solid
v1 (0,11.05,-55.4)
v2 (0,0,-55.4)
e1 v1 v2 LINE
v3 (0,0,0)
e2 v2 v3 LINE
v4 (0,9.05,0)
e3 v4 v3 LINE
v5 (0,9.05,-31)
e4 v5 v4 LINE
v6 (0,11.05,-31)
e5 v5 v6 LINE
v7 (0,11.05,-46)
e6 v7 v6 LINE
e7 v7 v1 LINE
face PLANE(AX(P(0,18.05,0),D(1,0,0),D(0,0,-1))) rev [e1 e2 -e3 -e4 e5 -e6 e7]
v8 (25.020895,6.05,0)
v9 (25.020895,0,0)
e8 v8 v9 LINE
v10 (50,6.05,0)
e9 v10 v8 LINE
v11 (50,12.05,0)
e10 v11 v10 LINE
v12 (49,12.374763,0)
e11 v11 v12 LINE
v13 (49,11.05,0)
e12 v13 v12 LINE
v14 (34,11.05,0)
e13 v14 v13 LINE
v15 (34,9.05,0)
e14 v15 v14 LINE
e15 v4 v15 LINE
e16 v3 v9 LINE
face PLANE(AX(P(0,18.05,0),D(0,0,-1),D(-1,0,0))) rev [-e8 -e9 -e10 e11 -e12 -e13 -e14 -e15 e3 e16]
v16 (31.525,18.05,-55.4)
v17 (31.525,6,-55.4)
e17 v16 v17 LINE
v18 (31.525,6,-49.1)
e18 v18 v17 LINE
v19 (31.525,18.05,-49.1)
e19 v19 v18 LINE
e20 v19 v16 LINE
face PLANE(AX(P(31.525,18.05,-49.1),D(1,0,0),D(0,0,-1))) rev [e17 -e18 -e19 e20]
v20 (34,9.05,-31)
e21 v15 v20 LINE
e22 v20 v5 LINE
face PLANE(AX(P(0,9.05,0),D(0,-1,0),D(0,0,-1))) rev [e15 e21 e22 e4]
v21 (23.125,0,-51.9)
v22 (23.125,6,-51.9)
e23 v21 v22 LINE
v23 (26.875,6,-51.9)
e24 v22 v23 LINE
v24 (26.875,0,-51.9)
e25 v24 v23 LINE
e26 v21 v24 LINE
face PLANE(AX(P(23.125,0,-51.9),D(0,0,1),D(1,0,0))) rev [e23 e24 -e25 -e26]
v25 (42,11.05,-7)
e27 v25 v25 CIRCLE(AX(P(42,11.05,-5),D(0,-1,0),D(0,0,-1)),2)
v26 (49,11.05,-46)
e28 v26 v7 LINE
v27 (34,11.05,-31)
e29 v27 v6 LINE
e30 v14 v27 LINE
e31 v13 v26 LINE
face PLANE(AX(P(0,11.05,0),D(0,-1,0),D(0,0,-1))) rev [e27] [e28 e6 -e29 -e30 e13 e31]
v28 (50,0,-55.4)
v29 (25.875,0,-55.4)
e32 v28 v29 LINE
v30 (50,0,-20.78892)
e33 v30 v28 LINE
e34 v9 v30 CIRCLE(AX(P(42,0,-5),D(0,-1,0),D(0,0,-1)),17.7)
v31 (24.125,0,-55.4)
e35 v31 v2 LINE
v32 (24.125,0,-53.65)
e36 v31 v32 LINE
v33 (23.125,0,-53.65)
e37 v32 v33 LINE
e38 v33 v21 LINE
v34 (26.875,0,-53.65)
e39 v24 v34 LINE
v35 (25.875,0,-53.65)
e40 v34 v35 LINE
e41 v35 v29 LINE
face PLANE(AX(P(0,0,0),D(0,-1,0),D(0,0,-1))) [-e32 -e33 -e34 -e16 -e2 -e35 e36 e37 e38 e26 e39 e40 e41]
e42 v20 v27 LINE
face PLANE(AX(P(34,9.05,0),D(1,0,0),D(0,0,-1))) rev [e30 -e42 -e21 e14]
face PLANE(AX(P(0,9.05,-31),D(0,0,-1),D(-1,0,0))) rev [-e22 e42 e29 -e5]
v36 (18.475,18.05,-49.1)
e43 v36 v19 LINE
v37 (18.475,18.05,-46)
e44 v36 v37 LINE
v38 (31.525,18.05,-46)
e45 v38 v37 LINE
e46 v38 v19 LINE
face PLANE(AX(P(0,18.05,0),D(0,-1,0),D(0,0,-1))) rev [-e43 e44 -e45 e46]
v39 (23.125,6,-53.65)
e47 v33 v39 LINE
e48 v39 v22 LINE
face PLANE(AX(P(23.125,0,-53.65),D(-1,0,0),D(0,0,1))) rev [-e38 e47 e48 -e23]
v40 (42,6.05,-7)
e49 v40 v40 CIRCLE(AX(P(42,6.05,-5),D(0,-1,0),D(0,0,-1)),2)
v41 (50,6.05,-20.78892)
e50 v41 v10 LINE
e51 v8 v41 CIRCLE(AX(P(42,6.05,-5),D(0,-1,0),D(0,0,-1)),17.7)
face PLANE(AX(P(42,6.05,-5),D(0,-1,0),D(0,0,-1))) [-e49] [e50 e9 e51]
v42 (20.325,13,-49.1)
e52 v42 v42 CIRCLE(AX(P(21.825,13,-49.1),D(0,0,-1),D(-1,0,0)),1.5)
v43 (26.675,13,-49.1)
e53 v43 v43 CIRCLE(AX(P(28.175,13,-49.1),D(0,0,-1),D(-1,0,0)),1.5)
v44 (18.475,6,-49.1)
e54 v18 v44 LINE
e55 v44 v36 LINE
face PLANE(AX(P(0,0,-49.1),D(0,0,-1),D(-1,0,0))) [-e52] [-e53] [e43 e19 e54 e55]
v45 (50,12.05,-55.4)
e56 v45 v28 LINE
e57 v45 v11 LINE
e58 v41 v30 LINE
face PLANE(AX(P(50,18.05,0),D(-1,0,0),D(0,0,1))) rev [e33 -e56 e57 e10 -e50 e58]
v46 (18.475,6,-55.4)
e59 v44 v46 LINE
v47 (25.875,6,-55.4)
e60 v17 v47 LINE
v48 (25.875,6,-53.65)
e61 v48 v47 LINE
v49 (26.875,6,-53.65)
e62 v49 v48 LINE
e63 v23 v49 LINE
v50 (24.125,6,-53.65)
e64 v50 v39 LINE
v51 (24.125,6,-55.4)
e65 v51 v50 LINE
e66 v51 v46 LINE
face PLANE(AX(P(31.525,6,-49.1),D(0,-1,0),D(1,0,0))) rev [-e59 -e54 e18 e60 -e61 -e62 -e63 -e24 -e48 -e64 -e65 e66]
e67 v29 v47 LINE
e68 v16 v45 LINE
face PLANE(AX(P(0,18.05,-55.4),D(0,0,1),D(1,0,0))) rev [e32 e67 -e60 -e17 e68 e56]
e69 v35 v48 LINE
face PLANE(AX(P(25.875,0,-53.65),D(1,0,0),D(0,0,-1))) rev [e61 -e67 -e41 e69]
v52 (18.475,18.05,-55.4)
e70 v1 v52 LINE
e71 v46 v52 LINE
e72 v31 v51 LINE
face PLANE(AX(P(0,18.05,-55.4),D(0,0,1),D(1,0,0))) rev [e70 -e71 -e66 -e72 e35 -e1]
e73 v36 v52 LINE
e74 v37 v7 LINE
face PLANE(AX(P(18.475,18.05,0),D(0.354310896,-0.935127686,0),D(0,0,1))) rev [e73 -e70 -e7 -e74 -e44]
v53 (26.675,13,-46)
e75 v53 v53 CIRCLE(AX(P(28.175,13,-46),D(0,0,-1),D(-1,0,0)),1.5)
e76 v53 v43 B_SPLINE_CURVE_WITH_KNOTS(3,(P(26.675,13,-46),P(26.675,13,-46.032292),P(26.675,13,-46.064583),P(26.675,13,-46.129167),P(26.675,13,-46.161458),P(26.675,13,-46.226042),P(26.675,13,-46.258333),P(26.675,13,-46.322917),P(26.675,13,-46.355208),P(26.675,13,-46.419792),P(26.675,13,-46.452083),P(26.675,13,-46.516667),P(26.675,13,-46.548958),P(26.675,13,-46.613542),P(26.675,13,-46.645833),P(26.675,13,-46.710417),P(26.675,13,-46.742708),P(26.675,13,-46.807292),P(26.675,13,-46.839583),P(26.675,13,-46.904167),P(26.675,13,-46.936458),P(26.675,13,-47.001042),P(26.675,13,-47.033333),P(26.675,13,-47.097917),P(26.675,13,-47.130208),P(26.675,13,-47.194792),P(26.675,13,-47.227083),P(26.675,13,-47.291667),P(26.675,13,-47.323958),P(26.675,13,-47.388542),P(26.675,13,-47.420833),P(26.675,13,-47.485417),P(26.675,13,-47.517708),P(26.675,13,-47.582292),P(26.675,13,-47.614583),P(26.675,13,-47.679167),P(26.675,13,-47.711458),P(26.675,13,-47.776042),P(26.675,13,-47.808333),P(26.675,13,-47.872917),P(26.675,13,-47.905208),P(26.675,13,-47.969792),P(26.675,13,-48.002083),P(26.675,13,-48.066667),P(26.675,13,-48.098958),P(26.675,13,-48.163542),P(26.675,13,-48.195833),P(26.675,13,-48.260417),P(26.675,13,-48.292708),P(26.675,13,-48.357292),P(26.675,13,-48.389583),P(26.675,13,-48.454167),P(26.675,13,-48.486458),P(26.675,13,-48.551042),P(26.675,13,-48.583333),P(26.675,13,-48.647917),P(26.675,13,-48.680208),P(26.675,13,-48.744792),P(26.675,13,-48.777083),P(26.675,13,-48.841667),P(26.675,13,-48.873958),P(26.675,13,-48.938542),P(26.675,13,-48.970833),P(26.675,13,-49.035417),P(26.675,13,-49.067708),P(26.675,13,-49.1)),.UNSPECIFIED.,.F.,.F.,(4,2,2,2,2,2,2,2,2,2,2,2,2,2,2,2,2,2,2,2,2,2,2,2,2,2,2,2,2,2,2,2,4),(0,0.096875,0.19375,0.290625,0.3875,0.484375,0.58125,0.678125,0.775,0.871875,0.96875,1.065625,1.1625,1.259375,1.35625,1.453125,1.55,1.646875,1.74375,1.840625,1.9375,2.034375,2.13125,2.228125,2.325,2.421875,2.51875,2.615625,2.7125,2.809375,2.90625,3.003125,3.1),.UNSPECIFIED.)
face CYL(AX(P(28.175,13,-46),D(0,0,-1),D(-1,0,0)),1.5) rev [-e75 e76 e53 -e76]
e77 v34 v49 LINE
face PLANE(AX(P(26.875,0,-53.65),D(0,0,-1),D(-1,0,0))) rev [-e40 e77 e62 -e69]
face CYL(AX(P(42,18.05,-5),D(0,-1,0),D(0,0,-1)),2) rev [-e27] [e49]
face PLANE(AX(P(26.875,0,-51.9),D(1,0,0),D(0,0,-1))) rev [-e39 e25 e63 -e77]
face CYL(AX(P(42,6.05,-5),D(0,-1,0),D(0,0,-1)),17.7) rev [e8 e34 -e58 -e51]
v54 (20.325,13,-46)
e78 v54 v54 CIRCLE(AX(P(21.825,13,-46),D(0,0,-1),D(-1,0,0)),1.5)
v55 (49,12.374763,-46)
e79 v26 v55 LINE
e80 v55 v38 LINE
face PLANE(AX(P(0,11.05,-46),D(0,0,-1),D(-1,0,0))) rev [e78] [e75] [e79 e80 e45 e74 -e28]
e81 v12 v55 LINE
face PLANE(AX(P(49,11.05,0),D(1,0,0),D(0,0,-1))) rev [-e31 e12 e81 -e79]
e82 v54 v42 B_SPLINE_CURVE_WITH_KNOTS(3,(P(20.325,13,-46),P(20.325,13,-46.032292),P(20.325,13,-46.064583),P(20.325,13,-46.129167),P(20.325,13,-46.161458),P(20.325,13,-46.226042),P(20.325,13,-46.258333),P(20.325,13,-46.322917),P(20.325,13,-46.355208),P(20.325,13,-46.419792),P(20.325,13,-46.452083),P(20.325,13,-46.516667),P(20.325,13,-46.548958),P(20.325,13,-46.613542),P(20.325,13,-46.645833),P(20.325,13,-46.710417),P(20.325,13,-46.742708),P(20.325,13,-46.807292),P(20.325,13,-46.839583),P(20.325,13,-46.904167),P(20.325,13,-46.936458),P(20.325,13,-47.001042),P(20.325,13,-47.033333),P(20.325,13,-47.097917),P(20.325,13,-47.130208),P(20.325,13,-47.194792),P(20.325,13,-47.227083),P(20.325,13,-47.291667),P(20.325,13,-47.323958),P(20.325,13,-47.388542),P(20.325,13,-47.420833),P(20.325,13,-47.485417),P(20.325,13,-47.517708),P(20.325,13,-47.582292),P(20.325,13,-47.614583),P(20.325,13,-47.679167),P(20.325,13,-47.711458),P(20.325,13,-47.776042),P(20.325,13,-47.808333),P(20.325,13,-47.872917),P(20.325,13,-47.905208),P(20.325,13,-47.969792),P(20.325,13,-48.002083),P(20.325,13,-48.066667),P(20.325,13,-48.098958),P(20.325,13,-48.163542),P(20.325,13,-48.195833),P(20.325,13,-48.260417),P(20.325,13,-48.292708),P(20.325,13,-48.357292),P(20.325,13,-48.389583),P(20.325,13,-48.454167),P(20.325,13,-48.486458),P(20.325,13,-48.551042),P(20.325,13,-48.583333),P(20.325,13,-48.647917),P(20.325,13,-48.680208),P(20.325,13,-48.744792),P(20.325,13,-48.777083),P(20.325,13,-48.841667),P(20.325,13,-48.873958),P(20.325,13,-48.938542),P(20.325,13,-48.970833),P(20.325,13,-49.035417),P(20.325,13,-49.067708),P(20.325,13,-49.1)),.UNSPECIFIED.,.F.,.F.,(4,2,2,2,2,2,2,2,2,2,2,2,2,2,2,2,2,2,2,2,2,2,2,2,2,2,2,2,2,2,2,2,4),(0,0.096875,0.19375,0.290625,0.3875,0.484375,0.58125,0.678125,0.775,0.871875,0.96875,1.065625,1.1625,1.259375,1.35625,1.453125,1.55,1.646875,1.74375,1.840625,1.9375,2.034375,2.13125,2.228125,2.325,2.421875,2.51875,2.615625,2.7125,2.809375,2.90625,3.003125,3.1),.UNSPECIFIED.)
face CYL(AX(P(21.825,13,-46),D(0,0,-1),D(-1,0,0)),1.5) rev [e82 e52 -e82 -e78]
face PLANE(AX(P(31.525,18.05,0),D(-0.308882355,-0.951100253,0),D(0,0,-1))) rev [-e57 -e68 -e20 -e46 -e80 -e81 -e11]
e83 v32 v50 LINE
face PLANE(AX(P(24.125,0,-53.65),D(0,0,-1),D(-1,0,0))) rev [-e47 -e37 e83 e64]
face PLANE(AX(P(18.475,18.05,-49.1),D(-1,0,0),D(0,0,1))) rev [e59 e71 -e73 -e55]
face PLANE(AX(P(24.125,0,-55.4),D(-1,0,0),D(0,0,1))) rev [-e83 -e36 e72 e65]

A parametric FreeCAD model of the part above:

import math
import FreeCAD as App
import Part
import Sketcher
from FreeCAD import Vector


def edges_at(feature, points):
    """Names of the edges that pass closest to the given points."""
    edges = feature.Shape.Edges
    near = lambda p: min(range(len(edges)), key=lambda i: edges[i].distToShape(Part.Vertex(*p))[0])
    return sorted({f"Edge{near(p) + 1}" for p in points})

doc = App.newDocument("Part")
body = doc.addObject("PartDesign::Body", "Body")

sketch1 = doc.addObject("Sketcher::SketchObject", "Sketch")
body.addObject(sketch1)
sketch1.AttachmentSupport = (doc.XZ_Plane, [""])
sketch1.MapMode = "FlatFace"
sketch1.addGeometry([
    Part.LineSegment(Vector(0, -55.4, 0), Vector(0, 0, 0)),
    Part.LineSegment(Vector(0, 0, 0), Vector(50, 0, 0)),
    Part.LineSegment(Vector(50, 0, 0), Vector(50, -55.4, 0)),
    Part.LineSegment(Vector(50, -55.4, 0), Vector(0, -55.4, 0)),
    Part.Circle(Vector(42, -5, 0), Vector(0, 0, 1), 2),
], False)
sketch1.addConstraint([
    Sketcher.Constraint("Coincident", 0, 2, 1, 1),
    Sketcher.Constraint("Coincident", 1, 2, 2, 1),
    Sketcher.Constraint("Coincident", 2, 2, 3, 1),
    Sketcher.Constraint("Coincident", 3, 2, 0, 1),
    Sketcher.Constraint("Vertical", 0),
    Sketcher.Constraint("Horizontal", 1),
    Sketcher.Constraint("Vertical", 2),
    Sketcher.Constraint("Horizontal", 3),
    Sketcher.Constraint("Coincident", 0, 2, -1, 1),
    Sketcher.Constraint("Diameter", 4, 4.0),
    Sketcher.Constraint("DistanceX", 1, 1, 1, 2, 50.0),
    Sketcher.Constraint("DistanceY", 0, 1, 0, 2, 55.4),
    Sketcher.Constraint("DistanceX", -1, 1, 4, 3, 42.0),
    Sketcher.Constraint("DistanceY", 4, 3, -1, 1, 5.0),
])
pad1 = doc.addObject("PartDesign::Pad", "Pad")
body.addObject(pad1)
pad1.Profile = sketch1
pad1.Length = 18.05
pad1.Reversed = True

sketch2 = doc.addObject("Sketcher::SketchObject", "Sketch001")
body.addObject(sketch2)
sketch2.AttachmentSupport = (doc.XZ_Plane, [""])
sketch2.MapMode = "FlatFace"
sketch2.AttachmentOffset = App.Placement(Vector(0, 0, -18.05), App.Rotation())
sketch2.addGeometry([
    Part.LineSegment(Vector(0, -46, 0), Vector(0, 0, 0)),
    Part.LineSegment(Vector(0, 0, 0), Vector(49, 0, 0)),
    Part.LineSegment(Vector(49, 0, 0), Vector(49, -46, 0)),
    Part.LineSegment(Vector(49, -46, 0), Vector(0, -46, 0)),
], False)
sketch2.addConstraint([
    Sketcher.Constraint("Coincident", 0, 2, 1, 1),
    Sketcher.Constraint("Coincident", 1, 2, 2, 1),
    Sketcher.Constraint("Coincident", 2, 2, 3, 1),
    Sketcher.Constraint("Coincident", 3, 2, 0, 1),
    Sketcher.Constraint("Vertical", 0),
    Sketcher.Constraint("Horizontal", 1),
    Sketcher.Constraint("Vertical", 2),
    Sketcher.Constraint("Horizontal", 3),
    Sketcher.Constraint("Coincident", 0, 2, -1, 1),
    Sketcher.Constraint("DistanceX", 1, 1, 1, 2, 49.0),
    Sketcher.Constraint("DistanceY", 0, 1, 0, 2, 46.0),
])
pocket1 = doc.addObject("PartDesign::Pocket", "Pocket")
body.addObject(pocket1)
pocket1.Profile = sketch2
pocket1.Length = 7
pocket1.Reversed = True

sketch3 = doc.addObject("Sketcher::SketchObject", "Sketch002")
body.addObject(sketch3)
sketch3.AttachmentSupport = (doc.XY_Plane, [""])
sketch3.MapMode = "FlatFace"
sketch3.AttachmentOffset = App.Placement(Vector(0, 0, -55.4), App.Rotation())
sketch3.addGeometry([
    Part.LineSegment(Vector(32, 18, 0), Vector(32, 6, 0)),
    Part.LineSegment(Vector(32, 6, 0), Vector(18, 6, 0)),
    Part.LineSegment(Vector(18, 6, 0), Vector(18, 18, 0)),
    Part.LineSegment(Vector(18, 18, 0), Vector(32, 18, 0)),
], False)
sketch3.addConstraint([
    Sketcher.Constraint("Coincident", 0, 2, 1, 1),
    Sketcher.Constraint("Coincident", 1, 2, 2, 1),
    Sketcher.Constraint("Coincident", 2, 2, 3, 1),
    Sketcher.Constraint("Coincident", 3, 2, 0, 1),
    Sketcher.Constraint("Vertical", 0),
    Sketcher.Constraint("Horizontal", 1),
    Sketcher.Constraint("Vertical", 2),
    Sketcher.Constraint("Horizontal", 3),
    Sketcher.Constraint("DistanceY", -1, 1, 0, 2, 6.0),
    Sketcher.Constraint("DistanceX", 1, 2, 1, 1, 13.05),
    Sketcher.Constraint("DistanceY", 0, 2, 0, 1, 12.05),
    Sketcher.Constraint("DistanceX", -1, 1, 0, 2, 31.525),
])
pocket2 = doc.addObject("PartDesign::Pocket", "Pocket001")
body.addObject(pocket2)
pocket2.Profile = sketch3
pocket2.Length = 6.3
pocket2.Reversed = True

sketch4 = doc.addObject("Sketcher::SketchObject", "Sketch003")
body.addObject(sketch4)
sketch4.AttachmentSupport = (doc.XY_Plane, [""])
sketch4.MapMode = "FlatFace"
sketch4.AttachmentOffset = App.Placement(Vector(0, 0, -49.1), App.Rotation())
sketch4.addGeometry([
    Part.Circle(Vector(28.2, 13, 0), Vector(0, 0, 1), 1.5),
    Part.Circle(Vector(21.8, 13, 0), Vector(0, 0, 1), 1.5),
], False)
sketch4.addConstraint([
    Sketcher.Constraint("Equal", 0, 1),
    Sketcher.Constraint("Horizontal", 0, 3, 1, 3),
    Sketcher.Constraint("Diameter", 0, 3.0),
    Sketcher.Constraint("DistanceY", -1, 1, 0, 3, 13.0),
    Sketcher.Constraint("DistanceX", 1, 3, 0, 3, 6.35),
    Sketcher.Constraint("DistanceX", -1, 1, 0, 3, 28.175),
])
pocket3 = doc.addObject("PartDesign::Pocket", "Pocket002")
body.addObject(pocket3)
pocket3.Profile = sketch4
pocket3.Length = 3.1
pocket3.Reversed = True

sketch5 = doc.addObject("Sketcher::SketchObject", "Sketch004")
body.addObject(sketch5)
sketch5.AttachmentSupport = (doc.XZ_Plane, [""])
sketch5.MapMode = "FlatFace"
sketch5.AttachmentOffset = App.Placement(Vector(0, 0, -6), App.Rotation())
sketch5.addGeometry([
    Part.LineSegment(Vector(24.1, -55.4, 0), Vector(24.1, -53.6, 0)),
    Part.LineSegment(Vector(24.1, -53.6, 0), Vector(23.1, -53.6, 0)),
    Part.LineSegment(Vector(23.1, -53.6, 0), Vector(23.1, -51.9, 0)),
    Part.LineSegment(Vector(23.1, -51.9, 0), Vector(26.9, -51.9, 0)),
    Part.LineSegment(Vector(26.9, -51.9, 0), Vector(26.9, -53.6, 0)),
    Part.LineSegment(Vector(26.9, -53.6, 0), Vector(25.9, -53.6, 0)),
    Part.LineSegment(Vector(25.9, -53.6, 0), Vector(25.9, -55.4, 0)),
    Part.LineSegment(Vector(25.9, -55.4, 0), Vector(24.1, -55.4, 0)),
], False)
sketch5.addConstraint([
    Sketcher.Constraint("Coincident", 0, 2, 1, 1),
    Sketcher.Constraint("Coincident", 1, 2, 2, 1),
    Sketcher.Constraint("Coincident", 2, 2, 3, 1),
    Sketcher.Constraint("Coincident", 3, 2, 4, 1),
    Sketcher.Constraint("Coincident", 4, 2, 5, 1),
    Sketcher.Constraint("Coincident", 5, 2, 6, 1),
    Sketcher.Constraint("Coincident", 6, 2, 7, 1),
    Sketcher.Constraint("Coincident", 7, 2, 0, 1),
    Sketcher.Constraint("Vertical", 0),
    Sketcher.Constraint("Horizontal", 1),
    Sketcher.Constraint("Vertical", 2),
    Sketcher.Constraint("Horizontal", 3),
    Sketcher.Constraint("Vertical", 4),
    Sketcher.Constraint("Horizontal", 5),
    Sketcher.Constraint("Vertical", 6),
    Sketcher.Constraint("Horizontal", 7),
    Sketcher.Constraint("Horizontal", 1, 2, 4, 2),
    Sketcher.Constraint("Equal", 1, 5),
    Sketcher.Constraint("Equal", 7, 0),
    Sketcher.Constraint("Equal", 0, 2),
    Sketcher.Constraint("DistanceX", 1, 2, 1, 1, 1.0),
    Sketcher.Constraint("DistanceX", 3, 1, 3, 2, 3.75),
    Sketcher.Constraint("DistanceY", 2, 2, -1, 1, 51.9),
    Sketcher.Constraint("DistanceX", -1, 1, 0, 2, 24.125),
])
pocket4 = doc.addObject("PartDesign::Pocket", "Pocket003")
body.addObject(pocket4)
pocket4.Profile = sketch5
pocket4.Type = "ThroughAll"
pocket4.Reversed = True

sketch6 = doc.addObject("Sketcher::SketchObject", "Sketch005")
body.addObject(sketch6)
sketch6.AttachmentSupport = (doc.XZ_Plane, [""])
sketch6.MapMode = "FlatFace"
sketch6.AttachmentOffset = App.Placement(Vector(0, 0, -11.05), App.Rotation())
sketch6.addGeometry([
    Part.LineSegment(Vector(0, -31, 0), Vector(0, 0, 0)),
    Part.LineSegment(Vector(0, 0, 0), Vector(34, 0, 0)),
    Part.LineSegment(Vector(34, 0, 0), Vector(34, -31, 0)),
    Part.LineSegment(Vector(34, -31, 0), Vector(0, -31, 0)),
], False)
sketch6.addConstraint([
    Sketcher.Constraint("Coincident", 0, 2, 1, 1),
    Sketcher.Constraint("Coincident", 1, 2, 2, 1),
    Sketcher.Constraint("Coincident", 2, 2, 3, 1),
    Sketcher.Constraint("Coincident", 3, 2, 0, 1),
    Sketcher.Constraint("Vertical", 0),
    Sketcher.Constraint("Horizontal", 1),
    Sketcher.Constraint("Vertical", 2),
    Sketcher.Constraint("Horizontal", 3),
    Sketcher.Constraint("Coincident", 0, 2, -1, 1),
    Sketcher.Constraint("DistanceX", 1, 1, 1, 2, 34.0),
    Sketcher.Constraint("DistanceY", 0, 1, 0, 2, 31.0),
])
pocket5 = doc.addObject("PartDesign::Pocket", "Pocket004")
body.addObject(pocket5)
pocket5.Profile = sketch6
pocket5.Length = 2
pocket5.Reversed = True

sketch7 = doc.addObject("Sketcher::SketchObject", "Sketch006")
body.addObject(sketch7)
sketch7.AttachmentSupport = (doc.XZ_Plane, [""])
sketch7.MapMode = "FlatFace"
sketch7.addGeometry([
    Part.LineSegment(Vector(50, 0, 0), Vector(25, 0, 0)),
    Part.ArcOfCircle(Part.Circle(Vector(42, -5, 0), Vector(0, 0, 1), 18), math.radians(164), math.radians(297)),
    Part.LineSegment(Vector(50, -21, 0), Vector(50, 0, 0)),
], False)
sketch7.addConstraint([
    Sketcher.Constraint("Coincident", 0, 2, 1, 1),
    Sketcher.Constraint("Coincident", 1, 2, 2, 1),
    Sketcher.Constraint("Coincident", 2, 2, 0, 1),
    Sketcher.Constraint("Horizontal", 0),
    Sketcher.Constraint("Vertical", 2),
    Sketcher.Constraint("PointOnObject", 0, 2, -1),
    Sketcher.Constraint("Radius", 1, 17.7),
    Sketcher.Constraint("DistanceX", -1, 1, 1, 3, 42.0),
    Sketcher.Constraint("DistanceY", 1, 3, -1, 1, 5.0),
    Sketcher.Constraint("DistanceX", -1, 1, 1, 2, 50.0),
])
pocket6 = doc.addObject("PartDesign::Pocket", "Pocket005")
body.addObject(pocket6)
pocket6.Profile = sketch7
pocket6.Length = 6.05
doc.recompute()

chamfer = doc.addObject("PartDesign::Chamfer", "Chamfer")
body.addObject(chamfer)
chamfer.Base = (pocket6, edges_at(pocket6, [(0, 18.05, -50.7)]))
chamfer.ChamferType = "Two distances"
chamfer.Size = 7
chamfer.Size2 = 18.475
doc.recompute()

chamfer2 = doc.addObject("PartDesign::Chamfer", "Chamfer001")
body.addObject(chamfer2)
chamfer2.Base = (chamfer, edges_at(chamfer, [(50, 18.05, -27.7)]))
chamfer2.ChamferType = "Two distances"
chamfer2.Size = 6
chamfer2.Size2 = 18.475
chamfer2.FlipDirection = True

doc.recompute()
